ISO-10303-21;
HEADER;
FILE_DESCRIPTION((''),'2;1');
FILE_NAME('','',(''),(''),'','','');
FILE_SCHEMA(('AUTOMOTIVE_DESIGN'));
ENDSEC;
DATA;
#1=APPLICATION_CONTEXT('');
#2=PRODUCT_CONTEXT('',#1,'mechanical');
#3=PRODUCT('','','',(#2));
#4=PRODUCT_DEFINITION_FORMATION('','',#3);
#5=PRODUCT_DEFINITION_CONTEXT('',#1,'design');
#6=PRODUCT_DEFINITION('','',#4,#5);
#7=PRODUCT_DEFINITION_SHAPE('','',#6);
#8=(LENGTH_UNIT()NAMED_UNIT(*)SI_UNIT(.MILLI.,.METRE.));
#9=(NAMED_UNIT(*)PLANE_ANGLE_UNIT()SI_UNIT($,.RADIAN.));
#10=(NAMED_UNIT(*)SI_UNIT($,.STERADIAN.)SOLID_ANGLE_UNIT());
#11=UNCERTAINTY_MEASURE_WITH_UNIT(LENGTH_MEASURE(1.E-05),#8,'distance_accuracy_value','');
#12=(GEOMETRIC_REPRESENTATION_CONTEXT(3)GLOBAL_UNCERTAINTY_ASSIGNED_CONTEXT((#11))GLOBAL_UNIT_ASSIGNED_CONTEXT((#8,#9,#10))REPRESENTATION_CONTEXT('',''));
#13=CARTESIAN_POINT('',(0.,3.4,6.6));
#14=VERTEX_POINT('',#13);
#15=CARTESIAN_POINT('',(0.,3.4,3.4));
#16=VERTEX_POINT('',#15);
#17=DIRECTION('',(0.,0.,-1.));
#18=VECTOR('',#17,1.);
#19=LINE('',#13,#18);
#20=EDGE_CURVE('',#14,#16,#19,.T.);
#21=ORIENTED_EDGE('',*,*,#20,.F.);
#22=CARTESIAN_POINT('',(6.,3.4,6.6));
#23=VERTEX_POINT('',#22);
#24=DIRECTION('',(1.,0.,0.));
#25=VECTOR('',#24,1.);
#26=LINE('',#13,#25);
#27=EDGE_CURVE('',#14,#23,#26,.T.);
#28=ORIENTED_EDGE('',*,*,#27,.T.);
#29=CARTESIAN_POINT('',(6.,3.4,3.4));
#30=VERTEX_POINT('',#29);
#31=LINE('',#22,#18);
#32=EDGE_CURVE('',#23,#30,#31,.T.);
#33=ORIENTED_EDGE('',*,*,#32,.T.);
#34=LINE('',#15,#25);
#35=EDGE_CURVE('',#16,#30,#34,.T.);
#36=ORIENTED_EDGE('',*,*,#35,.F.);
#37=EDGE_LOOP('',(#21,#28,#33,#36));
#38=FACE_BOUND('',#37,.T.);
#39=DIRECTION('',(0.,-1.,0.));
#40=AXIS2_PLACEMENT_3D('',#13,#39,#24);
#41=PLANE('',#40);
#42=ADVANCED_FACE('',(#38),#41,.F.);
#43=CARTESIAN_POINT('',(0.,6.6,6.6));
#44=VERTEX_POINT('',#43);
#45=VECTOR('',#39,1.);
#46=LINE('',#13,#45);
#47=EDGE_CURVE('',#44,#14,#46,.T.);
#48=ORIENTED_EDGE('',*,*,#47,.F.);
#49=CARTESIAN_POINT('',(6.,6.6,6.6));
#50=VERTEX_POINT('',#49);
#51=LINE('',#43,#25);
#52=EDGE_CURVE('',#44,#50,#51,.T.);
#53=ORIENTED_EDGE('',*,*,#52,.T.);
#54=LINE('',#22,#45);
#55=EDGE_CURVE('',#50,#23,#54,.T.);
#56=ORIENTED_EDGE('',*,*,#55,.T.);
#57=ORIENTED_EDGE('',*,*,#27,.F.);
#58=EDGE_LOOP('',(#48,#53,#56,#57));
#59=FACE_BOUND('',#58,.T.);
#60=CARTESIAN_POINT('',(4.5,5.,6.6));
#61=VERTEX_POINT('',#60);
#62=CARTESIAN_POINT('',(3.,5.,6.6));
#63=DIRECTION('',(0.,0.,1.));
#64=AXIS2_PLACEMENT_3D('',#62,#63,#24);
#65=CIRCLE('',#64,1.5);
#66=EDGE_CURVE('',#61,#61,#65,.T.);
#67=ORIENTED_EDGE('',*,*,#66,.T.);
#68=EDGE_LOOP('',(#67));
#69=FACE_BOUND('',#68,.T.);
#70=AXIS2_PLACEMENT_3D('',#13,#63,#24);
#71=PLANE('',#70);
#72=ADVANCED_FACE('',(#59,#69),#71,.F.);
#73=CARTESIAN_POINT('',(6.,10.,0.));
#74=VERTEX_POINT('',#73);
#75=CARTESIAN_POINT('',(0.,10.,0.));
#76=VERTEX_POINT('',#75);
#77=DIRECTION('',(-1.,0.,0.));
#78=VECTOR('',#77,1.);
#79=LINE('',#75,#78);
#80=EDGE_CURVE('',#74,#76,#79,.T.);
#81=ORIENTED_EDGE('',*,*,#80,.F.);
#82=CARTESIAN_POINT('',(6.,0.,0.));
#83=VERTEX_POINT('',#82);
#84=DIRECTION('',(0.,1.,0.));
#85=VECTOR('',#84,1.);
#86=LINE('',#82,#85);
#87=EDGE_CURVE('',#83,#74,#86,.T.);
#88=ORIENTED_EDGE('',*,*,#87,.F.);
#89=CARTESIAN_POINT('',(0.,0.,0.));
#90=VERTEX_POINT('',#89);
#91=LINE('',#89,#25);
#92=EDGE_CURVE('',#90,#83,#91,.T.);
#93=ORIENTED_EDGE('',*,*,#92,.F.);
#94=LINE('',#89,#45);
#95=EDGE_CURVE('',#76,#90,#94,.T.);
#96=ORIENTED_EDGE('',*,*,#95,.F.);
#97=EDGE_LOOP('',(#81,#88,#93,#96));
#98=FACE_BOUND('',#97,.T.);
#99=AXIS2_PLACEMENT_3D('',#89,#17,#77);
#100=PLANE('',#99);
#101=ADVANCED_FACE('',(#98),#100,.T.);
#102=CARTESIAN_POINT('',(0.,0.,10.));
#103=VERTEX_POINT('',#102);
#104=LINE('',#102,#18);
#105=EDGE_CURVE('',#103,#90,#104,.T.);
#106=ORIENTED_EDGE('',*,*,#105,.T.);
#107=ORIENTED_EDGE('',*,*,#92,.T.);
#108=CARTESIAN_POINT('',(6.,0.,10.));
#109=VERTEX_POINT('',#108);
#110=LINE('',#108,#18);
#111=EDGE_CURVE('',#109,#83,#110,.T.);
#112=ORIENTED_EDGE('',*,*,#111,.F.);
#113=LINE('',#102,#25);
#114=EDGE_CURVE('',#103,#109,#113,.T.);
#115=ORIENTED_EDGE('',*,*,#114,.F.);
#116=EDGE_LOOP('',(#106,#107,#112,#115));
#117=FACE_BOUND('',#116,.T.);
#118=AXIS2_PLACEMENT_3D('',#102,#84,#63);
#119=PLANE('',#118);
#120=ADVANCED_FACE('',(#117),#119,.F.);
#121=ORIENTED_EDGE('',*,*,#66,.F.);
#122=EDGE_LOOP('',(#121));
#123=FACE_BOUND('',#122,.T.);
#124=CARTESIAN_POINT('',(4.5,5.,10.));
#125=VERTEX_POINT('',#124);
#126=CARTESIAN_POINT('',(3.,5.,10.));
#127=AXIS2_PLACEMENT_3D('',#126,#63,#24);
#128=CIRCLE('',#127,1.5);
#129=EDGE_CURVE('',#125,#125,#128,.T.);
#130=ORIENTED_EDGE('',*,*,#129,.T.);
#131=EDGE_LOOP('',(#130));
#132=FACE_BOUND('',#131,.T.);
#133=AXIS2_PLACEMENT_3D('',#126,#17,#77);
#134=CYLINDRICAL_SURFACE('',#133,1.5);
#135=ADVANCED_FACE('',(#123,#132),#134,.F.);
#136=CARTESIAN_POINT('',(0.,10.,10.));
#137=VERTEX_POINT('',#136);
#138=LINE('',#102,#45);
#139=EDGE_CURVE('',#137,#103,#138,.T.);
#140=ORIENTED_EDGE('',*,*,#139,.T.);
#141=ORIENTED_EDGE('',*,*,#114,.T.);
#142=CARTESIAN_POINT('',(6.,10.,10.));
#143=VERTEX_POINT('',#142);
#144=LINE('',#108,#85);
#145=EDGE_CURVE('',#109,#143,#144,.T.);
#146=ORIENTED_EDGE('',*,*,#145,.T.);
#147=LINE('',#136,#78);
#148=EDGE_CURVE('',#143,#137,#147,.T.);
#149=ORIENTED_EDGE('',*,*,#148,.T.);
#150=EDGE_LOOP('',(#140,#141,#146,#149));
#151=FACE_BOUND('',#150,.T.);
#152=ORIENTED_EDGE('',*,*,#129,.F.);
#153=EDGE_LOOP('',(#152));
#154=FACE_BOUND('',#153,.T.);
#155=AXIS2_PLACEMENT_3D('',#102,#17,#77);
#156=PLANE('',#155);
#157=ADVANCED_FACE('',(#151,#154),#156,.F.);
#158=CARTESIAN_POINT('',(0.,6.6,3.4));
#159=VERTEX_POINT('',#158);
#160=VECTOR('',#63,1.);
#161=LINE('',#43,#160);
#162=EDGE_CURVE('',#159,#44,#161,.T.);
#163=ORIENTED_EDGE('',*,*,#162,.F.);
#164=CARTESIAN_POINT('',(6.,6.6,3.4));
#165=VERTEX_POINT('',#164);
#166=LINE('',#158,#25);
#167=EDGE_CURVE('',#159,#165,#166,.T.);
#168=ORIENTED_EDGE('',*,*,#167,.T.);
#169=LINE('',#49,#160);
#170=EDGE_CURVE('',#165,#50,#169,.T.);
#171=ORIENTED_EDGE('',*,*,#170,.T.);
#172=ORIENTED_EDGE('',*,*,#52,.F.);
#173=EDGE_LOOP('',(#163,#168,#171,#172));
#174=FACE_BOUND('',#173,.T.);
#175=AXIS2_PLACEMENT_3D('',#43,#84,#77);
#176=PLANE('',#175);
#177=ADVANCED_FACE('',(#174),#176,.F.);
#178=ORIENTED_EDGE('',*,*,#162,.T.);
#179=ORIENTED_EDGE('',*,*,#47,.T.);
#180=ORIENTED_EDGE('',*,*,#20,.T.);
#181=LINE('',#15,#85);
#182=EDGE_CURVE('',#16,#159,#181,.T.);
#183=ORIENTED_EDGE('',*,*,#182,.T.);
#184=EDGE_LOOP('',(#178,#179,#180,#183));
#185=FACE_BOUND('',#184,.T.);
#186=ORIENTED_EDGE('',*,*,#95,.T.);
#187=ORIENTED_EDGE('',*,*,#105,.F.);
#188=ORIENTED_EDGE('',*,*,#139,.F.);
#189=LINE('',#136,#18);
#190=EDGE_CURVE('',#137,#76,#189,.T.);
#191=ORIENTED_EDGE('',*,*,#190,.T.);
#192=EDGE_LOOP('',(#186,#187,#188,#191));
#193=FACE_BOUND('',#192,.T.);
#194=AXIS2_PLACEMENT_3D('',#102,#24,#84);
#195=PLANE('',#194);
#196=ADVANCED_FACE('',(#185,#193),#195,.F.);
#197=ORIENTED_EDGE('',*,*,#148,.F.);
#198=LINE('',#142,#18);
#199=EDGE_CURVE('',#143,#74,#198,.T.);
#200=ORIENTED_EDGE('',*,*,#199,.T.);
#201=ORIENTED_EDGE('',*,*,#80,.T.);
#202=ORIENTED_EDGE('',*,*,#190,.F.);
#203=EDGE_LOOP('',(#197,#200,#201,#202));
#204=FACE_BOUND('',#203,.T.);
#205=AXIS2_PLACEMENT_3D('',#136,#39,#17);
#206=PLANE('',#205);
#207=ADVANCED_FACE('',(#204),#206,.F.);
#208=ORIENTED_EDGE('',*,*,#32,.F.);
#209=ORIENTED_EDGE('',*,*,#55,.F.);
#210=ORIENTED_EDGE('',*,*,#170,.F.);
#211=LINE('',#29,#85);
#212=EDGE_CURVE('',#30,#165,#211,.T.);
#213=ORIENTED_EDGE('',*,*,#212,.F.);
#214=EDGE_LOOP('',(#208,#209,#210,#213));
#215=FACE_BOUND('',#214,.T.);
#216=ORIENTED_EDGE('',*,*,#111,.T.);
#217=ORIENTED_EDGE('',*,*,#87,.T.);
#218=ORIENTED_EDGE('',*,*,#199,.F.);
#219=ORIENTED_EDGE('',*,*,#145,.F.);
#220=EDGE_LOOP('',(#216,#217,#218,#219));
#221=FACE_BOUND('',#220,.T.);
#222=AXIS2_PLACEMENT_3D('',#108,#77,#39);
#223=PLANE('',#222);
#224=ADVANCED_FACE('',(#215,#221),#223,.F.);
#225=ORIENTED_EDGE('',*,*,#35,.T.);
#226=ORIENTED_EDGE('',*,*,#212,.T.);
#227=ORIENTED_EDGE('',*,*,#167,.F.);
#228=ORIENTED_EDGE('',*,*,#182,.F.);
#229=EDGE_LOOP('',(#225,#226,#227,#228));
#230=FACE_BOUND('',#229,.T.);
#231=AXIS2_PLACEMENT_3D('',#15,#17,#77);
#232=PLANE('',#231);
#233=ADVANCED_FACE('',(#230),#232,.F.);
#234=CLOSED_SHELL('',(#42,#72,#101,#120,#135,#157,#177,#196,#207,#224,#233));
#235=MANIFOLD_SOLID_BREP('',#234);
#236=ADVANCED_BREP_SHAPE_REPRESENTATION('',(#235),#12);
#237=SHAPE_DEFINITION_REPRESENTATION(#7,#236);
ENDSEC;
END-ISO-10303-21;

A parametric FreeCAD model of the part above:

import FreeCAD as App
import Part
import Sketcher

V = App.Vector


def add_polygon(sketch, points):
    """Adds a closed chain of lines whose ends are joined by coincident constraints."""
    first, n = sketch.GeometryCount, len(points)
    for a, b in zip(points, points[1:] + points[:1]):
        sketch.addGeometry(Part.LineSegment(App.Vector(*a, 0), App.Vector(*b, 0)), False)
    for i in range(n):
        sketch.addConstraint(Sketcher.Constraint("Coincident", first + i, 2, first + (i + 1) % n, 1))

doc = App.newDocument("Part")
body = doc.addObject("PartDesign::Body", "Body")

# Sketch on XY plane
sketch1 = body.newObject("Sketcher::SketchObject", "Sketch")
sketch1.AttachmentSupport = (doc.getObject("XY_Plane"), [""])
sketch1.MapMode = "FlatFace"
add_polygon(sketch1, [(0, 10), (0, 0), (6, 0), (6, 10)])  # lines 0-3
sketch1.addGeometry(Part.Circle(V(3, 5, 0), V(0, 0, 1), 1.5), False)  # 4
sketch1.addConstraint(Sketcher.Constraint("Vertical", 0))
sketch1.addConstraint(Sketcher.Constraint("Horizontal", 1))
sketch1.addConstraint(Sketcher.Constraint("Vertical", 2))
sketch1.addConstraint(Sketcher.Constraint("Horizontal", 3))
sketch1.addConstraint(Sketcher.Constraint("Coincident", 0, 2, -1, 1))
sketch1.addConstraint(Sketcher.Constraint("Diameter", 4, 3.0))
sketch1.addConstraint(Sketcher.Constraint("DistanceX", 1, 1, 1, 2, 6.0))
sketch1.addConstraint(Sketcher.Constraint("DistanceY", 0, 2, 0, 1, 10.0))
sketch1.addConstraint(Sketcher.Constraint("DistanceX", -1, 1, 4, 3, 3.0))
sketch1.addConstraint(Sketcher.Constraint("DistanceY", -1, 1, 4, 3, 5.0))
pad1 = body.newObject("PartDesign::Pad", "Pad")
pad1.Profile = sketch1
pad1.Length = 10

# Sketch on YZ plane
sketch2 = body.newObject("Sketcher::SketchObject", "Sketch001")
sketch2.AttachmentSupport = (doc.getObject("YZ_Plane"), [""])
sketch2.MapMode = "FlatFace"
sketch2.AttachmentOffset = App.Placement(V(0, 0, 6), App.Rotation())
add_polygon(sketch2, [(6.6, 6.6), (3.4, 6.6), (3.4, 3.4), (6.6, 3.4)])  # lines 0-3
sketch2.addConstraint(Sketcher.Constraint("Horizontal", 0))
sketch2.addConstraint(Sketcher.Constraint("Vertical", 1))
sketch2.addConstraint(Sketcher.Constraint("Horizontal", 2))
sketch2.addConstraint(Sketcher.Constraint("Vertical", 3))
sketch2.addConstraint(Sketcher.Constraint("Equal", 2, 1))
sketch2.addConstraint(Sketcher.Constraint("DistanceX", 0, 2, 0, 1, 3.2))
sketch2.addConstraint(Sketcher.Constraint("DistanceX", -1, 1, 0, 2, 3.4))
sketch2.addConstraint(Sketcher.Constraint("DistanceY", -1, 1, 0, 2, 6.6))
pocket1 = body.newObject("PartDesign::Pocket", "Pocket")
pocket1.Profile = sketch2
pocket1.Type = "ThroughAll"

# Sketch on XY plane
sketch3 = body.newObject("Sketcher::SketchObject", "Sketch002")
sketch3.AttachmentSupport = (doc.getObject("XY_Plane"), [""])
sketch3.MapMode = "FlatFace"
add_polygon(sketch3, [(0, 0), (6, 0), (6, 10), (0, 10)])  # lines 0-3
sketch3.addConstraint(Sketcher.Constraint("Horizontal", 0))
sketch3.addConstraint(Sketcher.Constraint("Vertical", 1))
sketch3.addConstraint(Sketcher.Constraint("Horizontal", 2))
sketch3.addConstraint(Sketcher.Constraint("Vertical", 3))
sketch3.addConstraint(Sketcher.Constraint("Coincident", 3, 2, -1, 1))
sketch3.addConstraint(Sketcher.Constraint("DistanceX", 0, 1, 0, 2, 6.0))
sketch3.addConstraint(Sketcher.Constraint("DistanceY", 1, 1, 1, 2, 10.0))
pad2 = body.newObject("PartDesign::Pad", "Pad001")
pad2.Profile = sketch3
pad2.Length = 3.4

doc.recompute()
